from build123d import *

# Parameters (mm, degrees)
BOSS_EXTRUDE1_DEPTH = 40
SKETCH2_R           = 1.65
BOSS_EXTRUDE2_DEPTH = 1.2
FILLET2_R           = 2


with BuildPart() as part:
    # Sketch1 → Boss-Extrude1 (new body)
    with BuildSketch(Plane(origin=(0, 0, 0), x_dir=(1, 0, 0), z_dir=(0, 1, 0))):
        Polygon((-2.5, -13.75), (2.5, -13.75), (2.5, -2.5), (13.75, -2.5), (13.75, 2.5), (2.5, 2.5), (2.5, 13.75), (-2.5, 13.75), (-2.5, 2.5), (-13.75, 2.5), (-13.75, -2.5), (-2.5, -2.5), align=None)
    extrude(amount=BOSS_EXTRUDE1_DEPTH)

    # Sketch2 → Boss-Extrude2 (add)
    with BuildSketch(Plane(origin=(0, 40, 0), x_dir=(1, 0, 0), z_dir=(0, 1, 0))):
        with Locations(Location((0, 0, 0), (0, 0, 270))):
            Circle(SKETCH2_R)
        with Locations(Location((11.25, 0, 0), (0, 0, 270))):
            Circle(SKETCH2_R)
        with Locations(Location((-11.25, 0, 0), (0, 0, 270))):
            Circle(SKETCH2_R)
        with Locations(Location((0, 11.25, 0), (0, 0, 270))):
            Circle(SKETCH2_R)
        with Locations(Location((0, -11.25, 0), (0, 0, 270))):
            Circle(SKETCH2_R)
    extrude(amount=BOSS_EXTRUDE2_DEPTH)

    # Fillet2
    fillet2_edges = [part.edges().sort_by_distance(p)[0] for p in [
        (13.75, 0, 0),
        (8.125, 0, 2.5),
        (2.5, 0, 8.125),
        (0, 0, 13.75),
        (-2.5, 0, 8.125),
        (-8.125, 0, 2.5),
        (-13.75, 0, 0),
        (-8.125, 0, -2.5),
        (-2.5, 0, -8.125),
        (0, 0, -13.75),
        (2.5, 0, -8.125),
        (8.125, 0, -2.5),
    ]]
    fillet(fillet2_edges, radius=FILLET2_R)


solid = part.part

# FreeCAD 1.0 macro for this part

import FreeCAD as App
import Part
import Sketcher
Q = App.Units.Quantity


def edges_at(feature, points):
    """Names of the edges that pass closest to the given points."""
    edges = feature.Shape.Edges
    near = lambda p: min(range(len(edges)), key=lambda i: edges[i].distToShape(Part.Vertex(*p))[0])
    return sorted({f"Edge{near(p) + 1}" for p in points})

doc = App.newDocument("Part")
body = doc.addObject("PartDesign::Body", "Body")

sketch1 = doc.addObject("Sketcher::SketchObject", "Sketch")
body.addObject(sketch1)
sketch1.AttachmentSupport = (doc.XZ_Plane, [""])
sketch1.MapMode = "FlatFace"
sketch1.addGeometry(Part.LineSegment(App.Vector(-2, 14, 0), App.Vector(2, 14, 0)), False)
sketch1.addGeometry(Part.LineSegment(App.Vector(2, 14, 0), App.Vector(2, 2, 0)), False)
sketch1.addGeometry(Part.LineSegment(App.Vector(2, 2, 0), App.Vector(14, 2, 0)), False)
sketch1.addGeometry(Part.LineSegment(App.Vector(14, 2, 0), App.Vector(14, -2, 0)), False)
sketch1.addGeometry(Part.LineSegment(App.Vector(14, -2, 0), App.Vector(2, -2, 0)), False)
sketch1.addGeometry(Part.LineSegment(App.Vector(2, -2, 0), App.Vector(2, -14, 0)), False)
sketch1.addGeometry(Part.LineSegment(App.Vector(2, -14, 0), App.Vector(-2, -14, 0)), False)
sketch1.addGeometry(Part.LineSegment(App.Vector(-2, -14, 0), App.Vector(-2, -2, 0)), False)
sketch1.addGeometry(Part.LineSegment(App.Vector(-2, -2, 0), App.Vector(-14, -2, 0)), False)
sketch1.addGeometry(Part.LineSegment(App.Vector(-14, -2, 0), App.Vector(-14, 2, 0)), False)
sketch1.addGeometry(Part.LineSegment(App.Vector(-14, 2, 0), App.Vector(-2, 2, 0)), False)
sketch1.addGeometry(Part.LineSegment(App.Vector(-2, 2, 0), App.Vector(-2, 14, 0)), False)
sketch1.addConstraint(Sketcher.Constraint("Coincident", 0, 2, 1, 1))
sketch1.addConstraint(Sketcher.Constraint("Coincident", 1, 2, 2, 1))
sketch1.addConstraint(Sketcher.Constraint("Coincident", 2, 2, 3, 1))
sketch1.addConstraint(Sketcher.Constraint("Coincident", 3, 2, 4, 1))
sketch1.addConstraint(Sketcher.Constraint("Coincident", 4, 2, 5, 1))
sketch1.addConstraint(Sketcher.Constraint("Coincident", 5, 2, 6, 1))
sketch1.addConstraint(Sketcher.Constraint("Coincident", 6, 2, 7, 1))
sketch1.addConstraint(Sketcher.Constraint("Coincident", 7, 2, 8, 1))
sketch1.addConstraint(Sketcher.Constraint("Coincident", 8, 2, 9, 1))
sketch1.addConstraint(Sketcher.Constraint("Coincident", 9, 2, 10, 1))
sketch1.addConstraint(Sketcher.Constraint("Coincident", 10, 2, 11, 1))
sketch1.addConstraint(Sketcher.Constraint("Coincident", 11, 2, 0, 1))
sketch1.addConstraint(Sketcher.Constraint("Horizontal", 0))
sketch1.addConstraint(Sketcher.Constraint("Vertical", 1))
sketch1.addConstraint(Sketcher.Constraint("Horizontal", 2))
sketch1.addConstraint(Sketcher.Constraint("Vertical", 3))
sketch1.addConstraint(Sketcher.Constraint("Horizontal", 4))
sketch1.addConstraint(Sketcher.Constraint("Vertical", 5))
sketch1.addConstraint(Sketcher.Constraint("Horizontal", 6))
sketch1.addConstraint(Sketcher.Constraint("Vertical", 7))
sketch1.addConstraint(Sketcher.Constraint("Horizontal", 8))
sketch1.addConstraint(Sketcher.Constraint("Vertical", 9))
sketch1.addConstraint(Sketcher.Constraint("Horizontal", 10))
sketch1.addConstraint(Sketcher.Constraint("Vertical", 11))
sketch1.addConstraint(Sketcher.Constraint("Symmetric", 0, 2, 6, 2, -1, 1))
sketch1.addConstraint(Sketcher.Constraint("Symmetric", 2, 2, 8, 2, -1, 1))
sketch1.addConstraint(Sketcher.Constraint("Symmetric", 4, 2, 10, 2, -1, 1))
sketch1.addConstraint(Sketcher.Constraint("Symmetric", 4, 2, 7, 2, -2))
sketch1.addConstraint(Sketcher.Constraint("Equal", 10, 1))
sketch1.addConstraint(Sketcher.Constraint("Equal", 6, 3))
sketch1.addConstraint(Sketcher.Constraint("DistanceX", 0, 1, 0, 2, Q("5 mm")))
sketch1.addConstraint(Sketcher.Constraint("DistanceX", 2, 1, 2, 2, Q("11.25 mm")))
pad1 = doc.addObject("PartDesign::Pad", "Pad")
body.addObject(pad1)
pad1.Profile = sketch1
pad1.Length = 40
pad1.Reversed = True

sketch2 = doc.addObject("Sketcher::SketchObject", "Sketch001")
body.addObject(sketch2)
sketch2.AttachmentSupport = (doc.XZ_Plane, [""])
sketch2.MapMode = "FlatFace"
sketch2.AttachmentOffset = App.Placement(App.Vector(0, 0, -40), App.Rotation())
sketch2.addGeometry(Part.Circle(App.Vector(0, 0, 0), App.Vector(0, 0, 1), 1.6), False)
sketch2.addGeometry(Part.Circle(App.Vector(11.2, 0, 0), App.Vector(0, 0, 1), 1.6), False)
sketch2.addGeometry(Part.Circle(App.Vector(-11.2, 0, 0), App.Vector(0, 0, 1), 1.6), False)
sketch2.addGeometry(Part.Circle(App.Vector(0, -11.2, 0), App.Vector(0, 0, 1), 1.6), False)
sketch2.addGeometry(Part.Circle(App.Vector(0, 11.2, 0), App.Vector(0, 0, 1), 1.6), False)
sketch2.addConstraint(Sketcher.Constraint("Coincident", 0, 3, -1, 1))
sketch2.addConstraint(Sketcher.Constraint("Equal", 0, 1))
sketch2.addConstraint(Sketcher.Constraint("Equal", 1, 2))
sketch2.addConstraint(Sketcher.Constraint("Equal", 2, 3))
sketch2.addConstraint(Sketcher.Constraint("Equal", 3, 4))
sketch2.addConstraint(Sketcher.Constraint("Symmetric", 1, 3, 2, 3, -1, 1))
sketch2.addConstraint(Sketcher.Constraint("Symmetric", 3, 3, 4, 3, -1, 1))
sketch2.addConstraint(Sketcher.Constraint("PointOnObject", 1, 3, -1))
sketch2.addConstraint(Sketcher.Constraint("PointOnObject", 3, 3, -2))
sketch2.addConstraint(Sketcher.Constraint("Diameter", 0, Q("3.3 mm")))
sketch2.addConstraint(Sketcher.Constraint("DistanceX", 2, 3, 1, 3, Q("22.5 mm")))
sketch2.addConstraint(Sketcher.Constraint("DistanceY", 3, 3, 4, 3, Q("22.5 mm")))
pad2 = doc.addObject("PartDesign::Pad", "Pad001")
body.addObject(pad2)
pad2.Profile = sketch2
pad2.Length = 1.2
pad2.Reversed = True
doc.recompute()

fillet = doc.addObject("PartDesign::Fillet", "Fillet")
body.addObject(fillet)
fillet.Base = (pad2, edges_at(pad2, [
    (13.75, 0, 0),
    (8.125, 0, 2.5),
    (2.5, 0, 8.125),
    (0, 0, 13.75),
    (-2.5, 0, 8.125),
    (-8.125, 0, 2.5),
    (-13.75, 0, 0),
    (-8.125, 0, -2.5),
    (-2.5, 0, -8.125),
    (0, 0, -13.75),
    (2.5, 0, -8.125),
    (8.125, 0, -2.5),
]))
fillet.Radius = 2

doc.recompute()
